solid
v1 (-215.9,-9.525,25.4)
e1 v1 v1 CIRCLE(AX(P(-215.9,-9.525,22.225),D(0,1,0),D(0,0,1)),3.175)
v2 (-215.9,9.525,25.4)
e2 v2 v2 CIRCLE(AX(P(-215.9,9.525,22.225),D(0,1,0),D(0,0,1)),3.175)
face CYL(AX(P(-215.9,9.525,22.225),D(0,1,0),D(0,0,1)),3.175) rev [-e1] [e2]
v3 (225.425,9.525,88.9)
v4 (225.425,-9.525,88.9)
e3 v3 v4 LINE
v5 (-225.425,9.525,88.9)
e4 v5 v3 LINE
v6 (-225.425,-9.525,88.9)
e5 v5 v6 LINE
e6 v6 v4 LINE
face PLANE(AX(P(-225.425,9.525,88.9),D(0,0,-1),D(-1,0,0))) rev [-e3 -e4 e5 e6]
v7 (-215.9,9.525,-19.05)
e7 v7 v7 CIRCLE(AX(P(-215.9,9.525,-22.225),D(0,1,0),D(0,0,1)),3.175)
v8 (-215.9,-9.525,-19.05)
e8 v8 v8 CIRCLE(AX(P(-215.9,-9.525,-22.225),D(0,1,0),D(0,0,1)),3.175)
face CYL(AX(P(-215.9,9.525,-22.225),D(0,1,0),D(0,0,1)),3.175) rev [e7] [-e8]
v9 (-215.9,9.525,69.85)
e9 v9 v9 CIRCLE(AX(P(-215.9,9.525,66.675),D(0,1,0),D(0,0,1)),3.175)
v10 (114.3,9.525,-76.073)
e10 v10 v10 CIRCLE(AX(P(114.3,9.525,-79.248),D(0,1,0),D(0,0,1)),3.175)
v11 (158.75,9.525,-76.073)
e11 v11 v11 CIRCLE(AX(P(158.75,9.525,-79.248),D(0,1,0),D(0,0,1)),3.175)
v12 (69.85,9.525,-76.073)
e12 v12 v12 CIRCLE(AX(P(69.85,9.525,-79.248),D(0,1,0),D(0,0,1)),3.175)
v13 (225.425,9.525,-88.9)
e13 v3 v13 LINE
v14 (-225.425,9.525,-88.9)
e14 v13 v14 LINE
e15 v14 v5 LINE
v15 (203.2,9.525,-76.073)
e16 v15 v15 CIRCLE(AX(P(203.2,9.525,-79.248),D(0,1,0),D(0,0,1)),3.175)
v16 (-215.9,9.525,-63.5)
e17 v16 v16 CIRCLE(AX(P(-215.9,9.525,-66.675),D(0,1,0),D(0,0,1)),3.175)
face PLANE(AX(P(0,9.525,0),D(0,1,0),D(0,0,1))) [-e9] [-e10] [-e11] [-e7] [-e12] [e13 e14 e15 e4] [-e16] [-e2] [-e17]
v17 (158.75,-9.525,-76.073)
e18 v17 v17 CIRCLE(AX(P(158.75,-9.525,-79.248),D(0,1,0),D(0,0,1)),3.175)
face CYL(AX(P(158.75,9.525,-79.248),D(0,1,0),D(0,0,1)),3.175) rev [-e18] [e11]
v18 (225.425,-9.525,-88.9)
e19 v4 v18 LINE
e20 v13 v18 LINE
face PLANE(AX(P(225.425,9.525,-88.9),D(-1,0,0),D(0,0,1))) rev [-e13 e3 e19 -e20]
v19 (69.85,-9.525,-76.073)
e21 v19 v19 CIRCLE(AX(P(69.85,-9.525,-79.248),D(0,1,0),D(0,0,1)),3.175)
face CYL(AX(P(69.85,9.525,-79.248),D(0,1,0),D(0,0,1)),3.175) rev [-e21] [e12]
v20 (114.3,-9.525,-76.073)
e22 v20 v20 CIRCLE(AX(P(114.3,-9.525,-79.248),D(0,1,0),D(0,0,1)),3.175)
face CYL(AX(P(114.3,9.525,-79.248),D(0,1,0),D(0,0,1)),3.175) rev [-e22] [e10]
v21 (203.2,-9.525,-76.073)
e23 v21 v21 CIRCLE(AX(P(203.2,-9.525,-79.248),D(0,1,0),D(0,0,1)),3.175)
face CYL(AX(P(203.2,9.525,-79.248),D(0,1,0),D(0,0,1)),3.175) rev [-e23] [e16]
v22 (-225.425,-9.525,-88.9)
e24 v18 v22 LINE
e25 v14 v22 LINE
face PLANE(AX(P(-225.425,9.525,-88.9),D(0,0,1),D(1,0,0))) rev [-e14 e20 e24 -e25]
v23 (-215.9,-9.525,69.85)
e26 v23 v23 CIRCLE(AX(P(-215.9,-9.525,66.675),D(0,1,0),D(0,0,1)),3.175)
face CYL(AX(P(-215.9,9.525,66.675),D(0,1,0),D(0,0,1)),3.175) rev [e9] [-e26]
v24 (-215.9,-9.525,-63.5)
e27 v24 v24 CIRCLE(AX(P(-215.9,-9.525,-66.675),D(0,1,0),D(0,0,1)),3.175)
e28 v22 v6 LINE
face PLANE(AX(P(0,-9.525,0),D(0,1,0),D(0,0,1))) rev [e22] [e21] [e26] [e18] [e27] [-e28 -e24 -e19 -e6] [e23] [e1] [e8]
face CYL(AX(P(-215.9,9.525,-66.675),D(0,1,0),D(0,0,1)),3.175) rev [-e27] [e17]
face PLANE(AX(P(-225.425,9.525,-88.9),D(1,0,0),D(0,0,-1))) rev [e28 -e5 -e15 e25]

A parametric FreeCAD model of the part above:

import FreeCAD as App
import Part
import Sketcher

V = App.Vector
Q = App.Units.Quantity


def add_polygon(sketch, points):
    """Adds a closed chain of lines whose ends are joined by coincident constraints."""
    first, n = sketch.GeometryCount, len(points)
    for a, b in zip(points, points[1:] + points[:1]):
        sketch.addGeometry(Part.LineSegment(App.Vector(*a, 0), App.Vector(*b, 0)), False)
    for i in range(n):
        sketch.addConstraint(Sketcher.Constraint("Coincident", first + i, 2, first + (i + 1) % n, 1))

doc = App.newDocument("Part")
body = doc.addObject("PartDesign::Body", "Body")

sketch1 = body.newObject("Sketcher::SketchObject", "Sketch")
sketch1.AttachmentSupport = (doc.getObject("XZ_Plane"), [""])
sketch1.MapMode = "FlatFace"
add_polygon(sketch1, [(-225, -89), (-225, 89), (225, 89), (225, -89)])
sketch1.addConstraint([
    Sketcher.Constraint("Vertical", 0),
    Sketcher.Constraint("Horizontal", 1),
    Sketcher.Constraint("Vertical", 2),
    Sketcher.Constraint("Horizontal", 3),
    Sketcher.Constraint("Symmetric", 0, 2, 2, 2, -1, 1),
    Sketcher.Constraint("DistanceY", 0, 1, 0, 2, Q("7 in")),
    Sketcher.Constraint("DistanceX", 1, 1, 1, 2, Q("17.75 in")),
])
pad1 = body.newObject("PartDesign::Pad", "Pad")
pad1.Profile = sketch1
pad1.Length = Q("0.75 in")
pad1.Midplane = True

sketch2 = body.newObject("Sketcher::SketchObject", "Sketch001")
sketch2.AttachmentSupport = (doc.getObject("XZ_Plane"), [""])
sketch2.MapMode = "FlatFace"
sketch2.AttachmentOffset = App.Placement(V(0, 0, -0.375 * 25.4), App.Rotation())
sketch2.addGeometry([
    Part.Circle(V(-215.9, -66.7, 0), V(0, 0, 1), 3.2),
    Part.Circle(V(-215.9, -22.2, 0), V(0, 0, 1), 3.2),
    Part.Circle(V(-215.9, 22.2, 0), V(0, 0, 1), 3.2),
    Part.Circle(V(-215.9, 66.7, 0), V(0, 0, 1), 3.2),
], False)
sketch2.addConstraint([
    Sketcher.Constraint("Equal", 0, 1),
    Sketcher.Constraint("Equal", 1, 2),
    Sketcher.Constraint("Equal", 2, 3),
    Sketcher.Constraint("Symmetric", 1, 3, 2, 3, -1),
    Sketcher.Constraint("Symmetric", 0, 3, 3, 3, -1),
    Sketcher.Constraint("Vertical", 0, 3, 1, 3),
    Sketcher.Constraint("Diameter", 0, Q("0.25 in")),
    Sketcher.Constraint("DistanceX", 0, 3, -1, 1, Q("8.5 in")),
    Sketcher.Constraint("DistanceY", 0, 3, 2, 3, Q("3.5 in")),
    Sketcher.Constraint("DistanceY", 0, 3, 1, 3, Q("1.75 in")),
])
doc.recompute()
hole = body.newObject("PartDesign::Hole", "Hole")
hole.Profile = sketch2
hole.ThreadType = "None"
hole.Diameter = Q("0.25 in")
hole.DepthType = "Dimension"
hole.Depth = Q("1 in")
hole.DrillPoint = "Angled"
hole.DrillPointAngle = 118
hole.Reversed = True

sketch3 = body.newObject("Sketcher::SketchObject", "Sketch002")
sketch3.AttachmentSupport = (doc.getObject("XZ_Plane"), [""])
sketch3.MapMode = "FlatFace"
sketch3.AttachmentOffset = App.Placement(V(0, 0, -0.375 * 25.4), App.Rotation())
sketch3.addGeometry([
    Part.Circle(V(203.2, -79.2, 0), V(0, 0, 1), 3.2),
    Part.Circle(V(158.8, -79.2, 0), V(0, 0, 1), 3.2),
    Part.Circle(V(114.3, -79.2, 0), V(0, 0, 1), 3.2),
    Part.Circle(V(69.8, -79.2, 0), V(0, 0, 1), 3.2),
], False)
sketch3.addConstraint([
    Sketcher.Constraint("Equal", 0, 1),
    Sketcher.Constraint("Equal", 1, 2),
    Sketcher.Constraint("Equal", 2, 3),
    Sketcher.Constraint("Horizontal", 0, 3, 1, 3),
    Sketcher.Constraint("Horizontal", 1, 3, 2, 3),
    Sketcher.Constraint("Horizontal", 2, 3, 3, 3),
    Sketcher.Constraint("Diameter", 0, Q("0.25 in")),
    Sketcher.Constraint("DistanceX", -1, 1, 0, 3, Q("8 in")),
    Sketcher.Constraint("DistanceX", -1, 1, 2, 3, Q("4.5 in")),
    Sketcher.Constraint("DistanceX", 3, 3, 1, 3, Q("3.5 in")),
    Sketcher.Constraint("DistanceY", 0, 3, -1, 1, Q("3.12 in")),
    Sketcher.Constraint("DistanceX", -1, 1, 1, 3, Q("6.25 in")),
])
doc.recompute()
hole2 = body.newObject("PartDesign::Hole", "Hole001")
hole2.Profile = sketch3
hole2.ThreadType = "None"
hole2.Diameter = Q("0.25 in")
hole2.DepthType = "Dimension"
hole2.Depth = Q("1 in")
hole2.DrillPoint = "Angled"
hole2.DrillPointAngle = 118
hole2.Reversed = True

doc.recompute()
